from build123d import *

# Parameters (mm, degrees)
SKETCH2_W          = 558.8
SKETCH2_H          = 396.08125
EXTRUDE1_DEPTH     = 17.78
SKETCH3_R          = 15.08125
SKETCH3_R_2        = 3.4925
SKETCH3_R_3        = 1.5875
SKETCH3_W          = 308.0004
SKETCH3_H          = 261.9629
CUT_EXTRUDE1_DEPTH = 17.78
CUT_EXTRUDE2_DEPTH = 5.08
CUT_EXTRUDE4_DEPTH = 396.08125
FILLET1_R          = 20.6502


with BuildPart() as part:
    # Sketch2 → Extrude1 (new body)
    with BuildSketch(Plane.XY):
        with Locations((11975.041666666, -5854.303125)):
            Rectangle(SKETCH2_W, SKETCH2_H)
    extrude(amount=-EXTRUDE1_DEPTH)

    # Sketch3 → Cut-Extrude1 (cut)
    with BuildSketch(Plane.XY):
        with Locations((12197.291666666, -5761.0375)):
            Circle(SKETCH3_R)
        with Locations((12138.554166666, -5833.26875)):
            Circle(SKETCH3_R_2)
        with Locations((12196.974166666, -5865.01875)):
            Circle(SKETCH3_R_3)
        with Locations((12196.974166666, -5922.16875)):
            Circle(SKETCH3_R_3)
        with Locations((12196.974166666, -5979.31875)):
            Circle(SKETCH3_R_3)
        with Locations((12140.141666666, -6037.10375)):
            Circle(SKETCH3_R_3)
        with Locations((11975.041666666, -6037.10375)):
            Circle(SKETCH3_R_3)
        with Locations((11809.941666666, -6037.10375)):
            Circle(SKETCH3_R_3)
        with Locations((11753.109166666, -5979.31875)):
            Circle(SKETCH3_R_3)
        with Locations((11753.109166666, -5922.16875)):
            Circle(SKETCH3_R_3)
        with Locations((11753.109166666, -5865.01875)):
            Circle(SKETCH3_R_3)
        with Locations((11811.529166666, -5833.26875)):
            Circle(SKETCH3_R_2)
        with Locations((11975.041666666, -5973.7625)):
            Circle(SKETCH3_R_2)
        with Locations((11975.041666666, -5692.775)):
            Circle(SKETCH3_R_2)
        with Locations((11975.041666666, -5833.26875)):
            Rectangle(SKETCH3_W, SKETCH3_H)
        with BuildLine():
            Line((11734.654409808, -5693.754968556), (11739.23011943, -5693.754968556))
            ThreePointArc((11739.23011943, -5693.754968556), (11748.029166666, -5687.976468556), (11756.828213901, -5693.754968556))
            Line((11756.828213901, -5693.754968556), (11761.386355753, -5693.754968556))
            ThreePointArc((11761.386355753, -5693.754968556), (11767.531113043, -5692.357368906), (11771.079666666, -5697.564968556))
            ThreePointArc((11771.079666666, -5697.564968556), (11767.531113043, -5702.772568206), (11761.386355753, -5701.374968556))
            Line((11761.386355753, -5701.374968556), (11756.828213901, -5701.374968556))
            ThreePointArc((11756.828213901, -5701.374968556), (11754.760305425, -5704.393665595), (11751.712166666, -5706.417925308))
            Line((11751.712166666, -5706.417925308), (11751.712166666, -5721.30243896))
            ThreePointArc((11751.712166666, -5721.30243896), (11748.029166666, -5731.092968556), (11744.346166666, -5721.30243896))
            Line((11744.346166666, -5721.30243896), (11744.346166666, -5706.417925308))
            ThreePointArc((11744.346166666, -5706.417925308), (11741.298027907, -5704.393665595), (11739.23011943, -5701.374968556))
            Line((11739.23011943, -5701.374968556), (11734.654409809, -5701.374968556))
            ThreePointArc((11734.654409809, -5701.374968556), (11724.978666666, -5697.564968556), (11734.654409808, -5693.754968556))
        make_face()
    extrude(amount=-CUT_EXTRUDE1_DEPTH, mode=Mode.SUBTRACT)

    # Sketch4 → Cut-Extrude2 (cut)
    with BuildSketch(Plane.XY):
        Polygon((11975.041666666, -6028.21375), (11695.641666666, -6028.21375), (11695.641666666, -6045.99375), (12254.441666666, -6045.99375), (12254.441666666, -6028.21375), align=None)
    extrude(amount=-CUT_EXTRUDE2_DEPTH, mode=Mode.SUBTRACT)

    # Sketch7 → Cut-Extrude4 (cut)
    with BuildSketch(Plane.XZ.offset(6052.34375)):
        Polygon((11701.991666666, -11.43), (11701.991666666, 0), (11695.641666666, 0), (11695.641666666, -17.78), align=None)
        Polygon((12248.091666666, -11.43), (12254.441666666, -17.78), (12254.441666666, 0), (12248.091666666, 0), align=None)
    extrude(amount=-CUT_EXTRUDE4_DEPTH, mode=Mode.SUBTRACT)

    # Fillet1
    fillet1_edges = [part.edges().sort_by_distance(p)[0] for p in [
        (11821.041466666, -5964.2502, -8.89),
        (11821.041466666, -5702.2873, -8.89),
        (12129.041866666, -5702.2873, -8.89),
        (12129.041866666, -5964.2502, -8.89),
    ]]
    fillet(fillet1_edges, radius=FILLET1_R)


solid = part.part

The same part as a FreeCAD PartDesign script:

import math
import FreeCAD as App
import Part
import Sketcher
from FreeCAD import Vector
Q = App.Units.Quantity


def edges_at(feature, points):
    """Names of the edges that pass closest to the given points."""
    edges = feature.Shape.Edges
    near = lambda p: min(range(len(edges)), key=lambda i: edges[i].distToShape(Part.Vertex(*p))[0])
    return sorted({f"Edge{near(p) + 1}" for p in points})

doc = App.newDocument("Part")
body = doc.addObject("PartDesign::Body", "Body")

sketch1 = body.newObject("Sketcher::SketchObject", "Sketch")
sketch1.AttachmentSupport = (doc.getObject("XY_Plane"), [""])
sketch1.MapMode = "FlatFace"
sketch1.addGeometry(Part.LineSegment(Vector(11696, -5656, 0), Vector(11696, -6052, 0)), False)
sketch1.addGeometry(Part.LineSegment(Vector(11696, -6052, 0), Vector(12254, -6052, 0)), False)
sketch1.addGeometry(Part.LineSegment(Vector(12254, -6052, 0), Vector(12254, -5656, 0)), False)
sketch1.addGeometry(Part.LineSegment(Vector(12254, -5656, 0), Vector(11696, -5656, 0)), False)
sketch1.addConstraint(Sketcher.Constraint("Coincident", 0, 2, 1, 1))
sketch1.addConstraint(Sketcher.Constraint("Coincident", 1, 2, 2, 1))
sketch1.addConstraint(Sketcher.Constraint("Coincident", 2, 2, 3, 1))
sketch1.addConstraint(Sketcher.Constraint("Coincident", 3, 2, 0, 1))
sketch1.addConstraint(Sketcher.Constraint("Vertical", 0))
sketch1.addConstraint(Sketcher.Constraint("Horizontal", 1))
sketch1.addConstraint(Sketcher.Constraint("Vertical", 2))
sketch1.addConstraint(Sketcher.Constraint("Horizontal", 3))
sketch1.addConstraint(Sketcher.Constraint("DistanceX", 1, 1, 1, 2, Q("22 in")))
sketch1.addConstraint(Sketcher.Constraint("DistanceY", 0, 2, 0, 1, Q("15.59375 in")))
sketch1.addConstraint(Sketcher.Constraint("DistanceY", 0, 2, -1, 1, Q("238.28125 in")))
sketch1.addConstraint(Sketcher.Constraint("DistanceX", -1, 1, 0, 2, 11695.641667))
pad1 = body.newObject("PartDesign::Pad", "Pad")
pad1.Profile = sketch1
pad1.Length = Q("0.7 in")
pad1.Reversed = True

sketch2 = body.newObject("Sketcher::SketchObject", "Sketch001")
sketch2.AttachmentSupport = (doc.getObject("XY_Plane"), [""])
sketch2.MapMode = "FlatFace"
sketch2.addGeometry(Part.Circle(Vector(12197.3, -5761, 0), Vector(0, 0, 1), 15.1), False)
sketch2.addGeometry(Part.Circle(Vector(12138.6, -5833.3, 0), Vector(0, 0, 1), 3.5), False)
sketch2.addGeometry(Part.Circle(Vector(12197, -5865, 0), Vector(0, 0, 1), 1.6), False)
sketch2.addGeometry(Part.Circle(Vector(12197, -5922.2, 0), Vector(0, 0, 1), 1.6), False)
sketch2.addGeometry(Part.Circle(Vector(12197, -5979.3, 0), Vector(0, 0, 1), 1.6), False)
sketch2.addGeometry(Part.Circle(Vector(12140.1, -6037.1, 0), Vector(0, 0, 1), 1.6), False)
sketch2.addGeometry(Part.Circle(Vector(11975, -6037.1, 0), Vector(0, 0, 1), 1.6), False)
sketch2.addGeometry(Part.Circle(Vector(11809.9, -6037.1, 0), Vector(0, 0, 1), 1.6), False)
sketch2.addGeometry(Part.Circle(Vector(11753.1, -5979.3, 0), Vector(0, 0, 1), 1.6), False)
sketch2.addGeometry(Part.Circle(Vector(11753.1, -5922.2, 0), Vector(0, 0, 1), 1.6), False)
sketch2.addGeometry(Part.Circle(Vector(11753.1, -5865, 0), Vector(0, 0, 1), 1.6), False)
sketch2.addGeometry(Part.Circle(Vector(11811.5, -5833.3, 0), Vector(0, 0, 1), 3.5), False)
sketch2.addGeometry(Part.Circle(Vector(11975, -5973.8, 0), Vector(0, 0, 1), 3.5), False)
sketch2.addGeometry(Part.Circle(Vector(11975, -5692.8, 0), Vector(0, 0, 1), 3.5), False)
sketch2.addGeometry(Part.LineSegment(Vector(11821, -5702.3, 0), Vector(11821, -5964.3, 0)), False)
sketch2.addGeometry(Part.LineSegment(Vector(11821, -5964.3, 0), Vector(12129, -5964.3, 0)), False)
sketch2.addGeometry(Part.LineSegment(Vector(12129, -5964.3, 0), Vector(12129, -5702.3, 0)), False)
sketch2.addGeometry(Part.LineSegment(Vector(12129, -5702.3, 0), Vector(11821, -5702.3, 0)), False)
sketch2.addGeometry(Part.LineSegment(Vector(11739.2, -5693.8, 0), Vector(11734.7, -5693.8, 0)), False)
sketch2.addGeometry(Part.ArcOfCircle(Part.Circle(Vector(11730.6, -5697.6, 0), Vector(0, 0, 1), 5.6), math.radians(43), math.radians(317)), False)
sketch2.addGeometry(Part.LineSegment(Vector(11734.7, -5701.4, 0), Vector(11739.2, -5701.4, 0)), False)
sketch2.addGeometry(Part.ArcOfCircle(Part.Circle(Vector(11748, -5697.6, 0), Vector(0, 0, 1), 9.6), math.radians(-157), math.radians(-113)), False)
sketch2.addGeometry(Part.LineSegment(Vector(11744.3, -5706.4, 0), Vector(11744.3, -5721.3, 0)), False)
sketch2.addGeometry(Part.ArcOfCircle(Part.Circle(Vector(11748, -5725.5, 0), Vector(0, 0, 1), 5.6), math.radians(131), math.radians(409)), False)
sketch2.addGeometry(Part.LineSegment(Vector(11751.7, -5721.3, 0), Vector(11751.7, -5706.4, 0)), False)
sketch2.addGeometry(Part.ArcOfCircle(Part.Circle(Vector(11748, -5697.6, 0), Vector(0, 0, 1), 9.6), math.radians(-67), math.radians(-23)), False)
sketch2.addGeometry(Part.LineSegment(Vector(11756.8, -5701.4, 0), Vector(11761.4, -5701.4, 0)), False)
sketch2.addGeometry(Part.ArcOfCircle(Part.Circle(Vector(11765.5, -5697.6, 0), Vector(0, 0, 1), 5.6), math.radians(-137), math.radians(0)), False)
sketch2.addGeometry(Part.ArcOfCircle(Part.Circle(Vector(11765.5, -5697.6, 0), Vector(0, 0, 1), 5.6), math.radians(0), math.radians(137)), False)
sketch2.addGeometry(Part.LineSegment(Vector(11761.4, -5693.8, 0), Vector(11756.8, -5693.8, 0)), False)
sketch2.addGeometry(Part.ArcOfCircle(Part.Circle(Vector(11748, -5697.6, 0), Vector(0, 0, 1), 9.6), math.radians(23), math.radians(157)), False)
sketch2.addConstraint(Sketcher.Constraint("Coincident", 14, 2, 15, 1))
sketch2.addConstraint(Sketcher.Constraint("Coincident", 15, 2, 16, 1))
sketch2.addConstraint(Sketcher.Constraint("Coincident", 16, 2, 17, 1))
sketch2.addConstraint(Sketcher.Constraint("Coincident", 17, 2, 14, 1))
sketch2.addConstraint(Sketcher.Constraint("Coincident", 18, 2, 19, 1))
sketch2.addConstraint(Sketcher.Constraint("Coincident", 19, 2, 20, 1))
sketch2.addConstraint(Sketcher.Constraint("Coincident", 20, 2, 21, 1))
sketch2.addConstraint(Sketcher.Constraint("Coincident", 21, 2, 22, 1))
sketch2.addConstraint(Sketcher.Constraint("Coincident", 22, 2, 23, 1))
sketch2.addConstraint(Sketcher.Constraint("Coincident", 23, 2, 24, 1))
sketch2.addConstraint(Sketcher.Constraint("Coincident", 24, 2, 25, 1))
sketch2.addConstraint(Sketcher.Constraint("Coincident", 25, 2, 26, 1))
sketch2.addConstraint(Sketcher.Constraint("Coincident", 26, 2, 27, 1))
sketch2.addConstraint(Sketcher.Constraint("Tangent", 27, 2, 28, 1))
sketch2.addConstraint(Sketcher.Constraint("Coincident", 28, 2, 29, 1))
sketch2.addConstraint(Sketcher.Constraint("Coincident", 29, 2, 30, 1))
sketch2.addConstraint(Sketcher.Constraint("Coincident", 30, 2, 18, 1))
sketch2.addConstraint(Sketcher.Constraint("Vertical", 14))
sketch2.addConstraint(Sketcher.Constraint("Horizontal", 15))
sketch2.addConstraint(Sketcher.Constraint("Vertical", 16))
sketch2.addConstraint(Sketcher.Constraint("Horizontal", 17))
sketch2.addConstraint(Sketcher.Constraint("Horizontal", 18))
sketch2.addConstraint(Sketcher.Constraint("Horizontal", 20))
sketch2.addConstraint(Sketcher.Constraint("Vertical", 22))
sketch2.addConstraint(Sketcher.Constraint("Vertical", 24))
sketch2.addConstraint(Sketcher.Constraint("Horizontal", 26))
sketch2.addConstraint(Sketcher.Constraint("Horizontal", 29))
sketch2.addConstraint(Sketcher.Constraint("Coincident", 25, 3, 21, 3))
sketch2.addConstraint(Sketcher.Constraint("Coincident", 30, 3, 21, 3))
sketch2.addConstraint(Sketcher.Constraint("Equal", 2, 3))
sketch2.addConstraint(Sketcher.Constraint("Equal", 3, 4))
sketch2.addConstraint(Sketcher.Constraint("Equal", 4, 5))
sketch2.addConstraint(Sketcher.Constraint("Equal", 5, 6))
sketch2.addConstraint(Sketcher.Constraint("Equal", 6, 7))
sketch2.addConstraint(Sketcher.Constraint("Equal", 7, 8))
sketch2.addConstraint(Sketcher.Constraint("Equal", 8, 9))
sketch2.addConstraint(Sketcher.Constraint("Equal", 9, 10))
sketch2.addConstraint(Sketcher.Constraint("Equal", 1, 11))
sketch2.addConstraint(Sketcher.Constraint("Equal", 11, 12))
sketch2.addConstraint(Sketcher.Constraint("Equal", 12, 13))
sketch2.addConstraint(Sketcher.Constraint("Equal", 19, 23))
sketch2.addConstraint(Sketcher.Constraint("Equal", 21, 25))
sketch2.addConstraint(Sketcher.Constraint("Equal", 27, 28))
sketch2.addConstraint(Sketcher.Constraint("Equal", 25, 30))
sketch2.addConstraint(Sketcher.Constraint("Horizontal", 5, 3, 6, 3))
sketch2.addConstraint(Sketcher.Constraint("Horizontal", 6, 3, 7, 3))
sketch2.addConstraint(Sketcher.Constraint("Horizontal", 4, 3, 8, 3))
sketch2.addConstraint(Sketcher.Constraint("Horizontal", 3, 3, 9, 3))
sketch2.addConstraint(Sketcher.Constraint("Horizontal", 2, 3, 10, 3))
sketch2.addConstraint(Sketcher.Constraint("Horizontal", 1, 3, 11, 3))
sketch2.addConstraint(Sketcher.Constraint("Horizontal", 19, 3, 21, 3))
sketch2.addConstraint(Sketcher.Constraint("Horizontal", 25, 3, 27, 3))
sketch2.addConstraint(Sketcher.Constraint("Horizontal", 22, 2, 23, 2))
sketch2.addConstraint(Sketcher.Constraint("Horizontal", 21, 2, 24, 2))
sketch2.addConstraint(Sketcher.Constraint("Horizontal", 20, 2, 25, 2))
sketch2.addConstraint(Sketcher.Constraint("Horizontal", 30, 3, 27, 2))
sketch2.addConstraint(Sketcher.Constraint("Horizontal", 18, 2, 28, 2))
sketch2.addConstraint(Sketcher.Constraint("Vertical", 2, 3, 3, 3))
sketch2.addConstraint(Sketcher.Constraint("Vertical", 3, 3, 4, 3))
sketch2.addConstraint(Sketcher.Constraint("Vertical", 8, 3, 9, 3))
sketch2.addConstraint(Sketcher.Constraint("Vertical", 9, 3, 10, 3))
sketch2.addConstraint(Sketcher.Constraint("Vertical", 6, 3, 12, 3))
sketch2.addConstraint(Sketcher.Constraint("Vertical", 12, 3, 13, 3))
sketch2.addConstraint(Sketcher.Constraint("Vertical", 18, 2, 19, 2))
sketch2.addConstraint(Sketcher.Constraint("Radius", 19, Q("0.22 in")))
sketch2.addConstraint(Sketcher.Constraint("Diameter", 0, Q("1.1875 in")))
sketch2.addConstraint(Sketcher.Constraint("Diameter", 1, Q("0.275 in")))
sketch2.addConstraint(Sketcher.Constraint("Diameter", 2, Q("0.125 in")))
sketch2.addConstraint(Sketcher.Constraint("DistanceX", 7, 3, 5, 3, Q("13 in")))
sketch2.addConstraint(Sketcher.Constraint("Radius", 21, Q("0.3775 in")))
sketch2.addConstraint(Sketcher.Constraint("DistanceX", 1, 3, 2, 3, Q("2.3 in")))
sketch2.addConstraint(Sketcher.Constraint("DistanceY", 3, 3, 1, 3, Q("3.5 in")))
sketch2.addConstraint(Sketcher.Constraint("DistanceY", 4, 3, 2, 3, Q("4.5 in")))
sketch2.addConstraint(Sketcher.Constraint("DistanceX", 6, 3, 5, 3, Q("6.5 in")))
sketch2.addConstraint(Sketcher.Constraint("DistanceX", 10, 3, 11, 3, Q("2.3 in")))
sketch2.addConstraint(Sketcher.Constraint("DistanceX", 21, 3, 11, 3, Q("2.5 in")))
sketch2.addConstraint(Sketcher.Constraint("DistanceY", 23, 3, 21, 3, Q("1.1 in")))
sketch2.addConstraint(Sketcher.Constraint("DistanceY", 19, 2, 18, 2, Q("0.3 in")))
sketch2.addConstraint(Sketcher.Constraint("DistanceX", 15, 1, 15, 2, Q("12.126 in")))
sketch2.addConstraint(Sketcher.Constraint("DistanceY", 2, 3, 1, 3, Q("1.25 in")))
sketch2.addConstraint(Sketcher.Constraint("DistanceX", 5, 3, 0, 3, Q("2.25 in")))
sketch2.addConstraint(Sketcher.Constraint("DistanceX", 22, 2, 23, 2, Q("0.29 in")))
sketch2.addConstraint(Sketcher.Constraint("DistanceY", 14, 2, 14, 1, Q("10.3135 in")))
sketch2.addConstraint(Sketcher.Constraint("DistanceY", 0, 3, -1, 1, Q("226.8125 in")))
sketch2.addConstraint(Sketcher.Constraint("DistanceY", 1, 3, -1, 1, Q("229.65625 in")))
sketch2.addConstraint(Sketcher.Constraint("DistanceY", 12, 3, -1, 1, Q("235.1875 in")))
sketch2.addConstraint(Sketcher.Constraint("DistanceY", 13, 3, -1, 1, Q("224.125 in")))
sketch2.addConstraint(Sketcher.Constraint("DistanceY", 14, 2, -1, 1, Q("234.813 in")))
sketch2.addConstraint(Sketcher.Constraint("DistanceX", 1, 3, 0, 3, Q("2.3125 in")))
sketch2.addConstraint(Sketcher.Constraint("DistanceY", 5, 3, 4, 3, Q("2.275 in")))
sketch2.addConstraint(Sketcher.Constraint("DistanceX", 8, 3, 1, 3, Q("15.175 in")))
sketch2.addConstraint(Sketcher.Constraint("DistanceX", 19, 3, 11, 3, Q("3.1875 in")))
sketch2.addConstraint(Sketcher.Constraint("DistanceX", 7, 3, 14, 2, Q("0.437 in")))
sketch2.addConstraint(Sketcher.Constraint("Radius", 27, 5.595424))
sketch2.addConstraint(Sketcher.Constraint("DistanceX", 24, 2, 27, 2, Q("0.7625 in")))
sketch2.addConstraint(Sketcher.Constraint("DistanceY", 19, 3, -1, 1, 5697.564969))
sketch2.addConstraint(Sketcher.Constraint("DistanceX", -1, 1, 18, 2, 11734.65441))
pocket1 = body.newObject("PartDesign::Pocket", "Pocket")
pocket1.Profile = sketch2
pocket1.Length = Q("0.7 in")

sketch3 = body.newObject("Sketcher::SketchObject", "Sketch002")
sketch3.AttachmentSupport = (doc.getObject("XY_Plane"), [""])
sketch3.MapMode = "FlatFace"
sketch3.addGeometry(Part.LineSegment(Vector(11696, -6028, 0), Vector(11696, -6046, 0)), False)
sketch3.addGeometry(Part.LineSegment(Vector(11696, -6046, 0), Vector(12254, -6046, 0)), False)
sketch3.addGeometry(Part.LineSegment(Vector(12254, -6046, 0), Vector(12254, -6028, 0)), False)
sketch3.addGeometry(Part.LineSegment(Vector(12254, -6028, 0), Vector(11696, -6028, 0)), False)
sketch3.addConstraint(Sketcher.Constraint("Coincident", 0, 2, 1, 1))
sketch3.addConstraint(Sketcher.Constraint("Coincident", 1, 2, 2, 1))
sketch3.addConstraint(Sketcher.Constraint("Coincident", 2, 2, 3, 1))
sketch3.addConstraint(Sketcher.Constraint("Coincident", 3, 2, 0, 1))
sketch3.addConstraint(Sketcher.Constraint("Vertical", 0))
sketch3.addConstraint(Sketcher.Constraint("Horizontal", 1))
sketch3.addConstraint(Sketcher.Constraint("Vertical", 2))
sketch3.addConstraint(Sketcher.Constraint("Horizontal", 3))
sketch3.addConstraint(Sketcher.Constraint("DistanceX", 1, 1, 1, 2, Q("22 in")))
sketch3.addConstraint(Sketcher.Constraint("DistanceY", 0, 2, 0, 1, Q("0.7 in")))
sketch3.addConstraint(Sketcher.Constraint("DistanceY", 0, 2, -1, 1, Q("238.03125 in")))
sketch3.addConstraint(Sketcher.Constraint("DistanceX", -1, 1, 0, 2, 11695.641667))
pocket2 = body.newObject("PartDesign::Pocket", "Pocket001")
pocket2.Profile = sketch3
pocket2.Length = Q("0.2 in")

sketch4 = body.newObject("Sketcher::SketchObject", "Sketch003")
sketch4.AttachmentSupport = (doc.getObject("XZ_Plane"), [""])
sketch4.MapMode = "FlatFace"
sketch4.AttachmentOffset = App.Placement(Vector(0, 0, 238.28125 * 25.4), App.Rotation())
sketch4.addGeometry(Part.LineSegment(Vector(11701.991667, -11.43, 0), Vector(11701.991667, 0, 0)), False)
sketch4.addGeometry(Part.LineSegment(Vector(11701.991667, 0, 0), Vector(11695.641667, 0, 0)), False)
sketch4.addGeometry(Part.LineSegment(Vector(11695.641667, 0, 0), Vector(11695.641667, -17.78, 0)), False)
sketch4.addGeometry(Part.LineSegment(Vector(11695.641667, -17.78, 0), Vector(11701.991667, -11.43, 0)), False)
sketch4.addGeometry(Part.LineSegment(Vector(12248.091667, -11.43, 0), Vector(12254.441667, -17.78, 0)), False)
sketch4.addGeometry(Part.LineSegment(Vector(12254.441667, -17.78, 0), Vector(12254.441667, 0, 0)), False)
sketch4.addGeometry(Part.LineSegment(Vector(12254.441667, 0, 0), Vector(12248.091667, 0, 0)), False)
sketch4.addGeometry(Part.LineSegment(Vector(12248.091667, 0, 0), Vector(12248.091667, -11.43, 0)), False)
sketch4.addConstraint(Sketcher.Constraint("Coincident", 0, 2, 1, 1))
sketch4.addConstraint(Sketcher.Constraint("Coincident", 1, 2, 2, 1))
sketch4.addConstraint(Sketcher.Constraint("Coincident", 2, 2, 3, 1))
sketch4.addConstraint(Sketcher.Constraint("Coincident", 3, 2, 0, 1))
sketch4.addConstraint(Sketcher.Constraint("Coincident", 4, 2, 5, 1))
sketch4.addConstraint(Sketcher.Constraint("Coincident", 5, 2, 6, 1))
sketch4.addConstraint(Sketcher.Constraint("Coincident", 6, 2, 7, 1))
sketch4.addConstraint(Sketcher.Constraint("Coincident", 7, 2, 4, 1))
sketch4.addConstraint(Sketcher.Constraint("Vertical", 0))
sketch4.addConstraint(Sketcher.Constraint("Horizontal", 1))
sketch4.addConstraint(Sketcher.Constraint("Vertical", 2))
sketch4.addConstraint(Sketcher.Constraint("Vertical", 5))
sketch4.addConstraint(Sketcher.Constraint("Horizontal", 6))
sketch4.addConstraint(Sketcher.Constraint("Vertical", 7))
sketch4.addConstraint(Sketcher.Constraint("PointOnObject", 0, 2, -1))
sketch4.addConstraint(Sketcher.Constraint("PointOnObject", 5, 2, -1))
sketch4.addConstraint(Sketcher.Constraint("Perpendicular", 3, 4))
sketch4.addConstraint(Sketcher.Constraint("Horizontal", 2, 2, 4, 2))
sketch4.addConstraint(Sketcher.Constraint("Horizontal", 3, 2, 7, 2))
sketch4.addConstraint(Sketcher.Constraint("Equal", 1, 6))
sketch4.addConstraint(Sketcher.Constraint("DistanceY", 2, 2, 2, 1, Q("0.7 in")))
sketch4.addConstraint(Sketcher.Constraint("DistanceX", 2, 2, 4, 2, Q("22 in")))
sketch4.addConstraint(Sketcher.Constraint("DistanceX", 1, 2, 1, 1, Q("0.25 in")))
sketch4.addConstraint(Sketcher.Constraint("DistanceX", -1, 1, 0, 2, 11701.991667))
pocket3 = body.newObject("PartDesign::Pocket", "Pocket002")
pocket3.Profile = sketch4
pocket3.Length = Q("15.59375 in")
doc.recompute()

fillet = body.newObject("PartDesign::Fillet", "Fillet")
fillet.Base = (pocket3, edges_at(pocket3, [
    (11821.041, -5964.25, -8.89),
    (11821.041, -5702.287, -8.89),
    (12129.042, -5702.287, -8.89),
    (12129.042, -5964.25, -8.89),
]))
fillet.Radius = Q("0.813 in")

doc.recompute()
